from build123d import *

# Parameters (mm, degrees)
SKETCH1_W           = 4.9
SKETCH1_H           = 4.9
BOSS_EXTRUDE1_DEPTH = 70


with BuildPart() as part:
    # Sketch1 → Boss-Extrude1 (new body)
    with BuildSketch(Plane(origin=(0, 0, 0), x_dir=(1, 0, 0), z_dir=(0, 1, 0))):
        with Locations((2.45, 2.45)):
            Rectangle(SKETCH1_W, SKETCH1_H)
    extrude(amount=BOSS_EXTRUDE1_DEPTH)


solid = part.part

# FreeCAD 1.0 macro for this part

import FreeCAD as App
import Part
import Sketcher

V = App.Vector
Q = App.Units.Quantity


def add_polygon(sketch, points):
    """Adds a closed chain of lines whose ends are joined by coincident constraints."""
    first, n = sketch.GeometryCount, len(points)
    for a, b in zip(points, points[1:] + points[:1]):
        sketch.addGeometry(Part.LineSegment(App.Vector(*a, 0), App.Vector(*b, 0)), False)
    for i in range(n):
        sketch.addConstraint(Sketcher.Constraint("Coincident", first + i, 2, first + (i + 1) % n, 1))

doc = App.newDocument("Part")
params = doc.addObject("Spreadsheet::Sheet", "Params")
for row, (alias, value) in enumerate([
    ("sketch1_width", "4.9 mm"),
    ("pad1_length", "70 mm"),
], start=1):
    params.set(f"A{row}", alias)
    params.set(f"B{row}", "=" + value)
    params.setAlias(f"B{row}", alias)

body = doc.addObject("PartDesign::Body", "Body")

sketch1 = body.newObject("Sketcher::SketchObject", "Sketch")
sketch1.AttachmentSupport = (doc.getObject("XZ_Plane"), [""])
sketch1.MapMode = "FlatFace"
add_polygon(sketch1, [(0, -4.9), (0, 0), (4.9, 0), (4.9, -4.9)])
sketch1.addConstraint([
    Sketcher.Constraint("Vertical", 0),
    Sketcher.Constraint("Horizontal", 1),
    Sketcher.Constraint("Vertical", 2),
    Sketcher.Constraint("Horizontal", 3),
    Sketcher.Constraint("Coincident", 0, 2, -1, 1),
    Sketcher.Constraint("Equal", 3, 0),
    Sketcher.Constraint("DistanceX", 1, 1, 1, 2, Q("4.9 mm")),
])
sketch1.setExpression("Constraints[10]", "Params.sketch1_width")
pad1 = body.newObject("PartDesign::Pad", "Pad")
pad1.Profile = sketch1
pad1.setExpression("Length", "Params.pad1_length")
pad1.Reversed = True

doc.recompute()
